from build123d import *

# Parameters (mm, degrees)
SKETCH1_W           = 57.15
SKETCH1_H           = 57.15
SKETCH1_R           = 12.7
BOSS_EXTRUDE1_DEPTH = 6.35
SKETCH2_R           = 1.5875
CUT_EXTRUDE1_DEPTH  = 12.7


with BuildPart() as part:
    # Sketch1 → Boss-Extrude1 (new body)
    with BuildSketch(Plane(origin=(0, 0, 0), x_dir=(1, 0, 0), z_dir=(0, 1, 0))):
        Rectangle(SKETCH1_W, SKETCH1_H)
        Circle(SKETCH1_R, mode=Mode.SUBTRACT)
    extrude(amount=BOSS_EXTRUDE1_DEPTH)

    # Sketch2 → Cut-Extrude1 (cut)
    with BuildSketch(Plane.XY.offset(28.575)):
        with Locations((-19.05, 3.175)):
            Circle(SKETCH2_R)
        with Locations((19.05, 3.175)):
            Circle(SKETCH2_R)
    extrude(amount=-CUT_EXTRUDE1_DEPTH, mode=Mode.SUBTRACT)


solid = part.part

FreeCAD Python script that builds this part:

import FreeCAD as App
import Part
import Sketcher

V = App.Vector
Q = App.Units.Quantity


def add_polygon(sketch, points):
    """Adds a closed chain of lines whose ends are joined by coincident constraints."""
    first, n = sketch.GeometryCount, len(points)
    for a, b in zip(points, points[1:] + points[:1]):
        sketch.addGeometry(Part.LineSegment(App.Vector(*a, 0), App.Vector(*b, 0)), False)
    for i in range(n):
        sketch.addConstraint(Sketcher.Constraint("Coincident", first + i, 2, first + (i + 1) % n, 1))

doc = App.newDocument("Part")
body = doc.addObject("PartDesign::Body", "Body")

# Sketch on XZ plane
sketch1 = doc.addObject("Sketcher::SketchObject", "Sketch")
body.addObject(sketch1)
sketch1.AttachmentSupport = (doc.XZ_Plane, [""])
sketch1.MapMode = "FlatFace"
add_polygon(sketch1, [(-29, -29), (-29, 29), (29, 29), (29, -29)])  # lines 0-3
sketch1.addGeometry(Part.Circle(V(0, 0, 0), V(0, 0, 1), 13), False)  # 4
sketch1.addConstraint([
    Sketcher.Constraint("Vertical", 0),
    Sketcher.Constraint("Horizontal", 1),
    Sketcher.Constraint("Vertical", 2),
    Sketcher.Constraint("Horizontal", 3),
    Sketcher.Constraint("Coincident", 4, 3, -1, 1),
    Sketcher.Constraint("Symmetric", 0, 2, 2, 2, -1, 1),
    Sketcher.Constraint("Equal", 3, 0),
    Sketcher.Constraint("Diameter", 4, Q("1 in")),
    Sketcher.Constraint("DistanceX", 1, 1, 1, 2, Q("2.25 in")),
])
pad1 = doc.addObject("PartDesign::Pad", "Pad")
body.addObject(pad1)
pad1.Profile = sketch1
pad1.Length = Q("0.25 in")
pad1.Reversed = True

# Sketch on XY plane
sketch2 = doc.addObject("Sketcher::SketchObject", "Sketch001")
body.addObject(sketch2)
sketch2.AttachmentSupport = (doc.XY_Plane, [""])
sketch2.MapMode = "FlatFace"
sketch2.AttachmentOffset = App.Placement(V(0, 0, 1.125 * 25.4), App.Rotation())
sketch2.addGeometry([
    Part.Circle(V(-19.1, 3.2, 0), V(0, 0, 1), 1.6),
    Part.Circle(V(19.1, 3.2, 0), V(0, 0, 1), 1.6),
], False)
sketch2.addConstraint([
    Sketcher.Constraint("Equal", 0, 1),
    Sketcher.Constraint("Symmetric", 0, 3, 1, 3, -2),
    Sketcher.Constraint("Diameter", 0, Q("0.125 in")),
    Sketcher.Constraint("DistanceX", 0, 3, 1, 3, Q("1.5 in")),
    Sketcher.Constraint("DistanceY", -1, 1, 0, 3, Q("0.125 in")),
])
pocket1 = doc.addObject("PartDesign::Pocket", "Pocket")
body.addObject(pocket1)
pocket1.Profile = sketch2
pocket1.Length = Q("0.5 in")

doc.recompute()
